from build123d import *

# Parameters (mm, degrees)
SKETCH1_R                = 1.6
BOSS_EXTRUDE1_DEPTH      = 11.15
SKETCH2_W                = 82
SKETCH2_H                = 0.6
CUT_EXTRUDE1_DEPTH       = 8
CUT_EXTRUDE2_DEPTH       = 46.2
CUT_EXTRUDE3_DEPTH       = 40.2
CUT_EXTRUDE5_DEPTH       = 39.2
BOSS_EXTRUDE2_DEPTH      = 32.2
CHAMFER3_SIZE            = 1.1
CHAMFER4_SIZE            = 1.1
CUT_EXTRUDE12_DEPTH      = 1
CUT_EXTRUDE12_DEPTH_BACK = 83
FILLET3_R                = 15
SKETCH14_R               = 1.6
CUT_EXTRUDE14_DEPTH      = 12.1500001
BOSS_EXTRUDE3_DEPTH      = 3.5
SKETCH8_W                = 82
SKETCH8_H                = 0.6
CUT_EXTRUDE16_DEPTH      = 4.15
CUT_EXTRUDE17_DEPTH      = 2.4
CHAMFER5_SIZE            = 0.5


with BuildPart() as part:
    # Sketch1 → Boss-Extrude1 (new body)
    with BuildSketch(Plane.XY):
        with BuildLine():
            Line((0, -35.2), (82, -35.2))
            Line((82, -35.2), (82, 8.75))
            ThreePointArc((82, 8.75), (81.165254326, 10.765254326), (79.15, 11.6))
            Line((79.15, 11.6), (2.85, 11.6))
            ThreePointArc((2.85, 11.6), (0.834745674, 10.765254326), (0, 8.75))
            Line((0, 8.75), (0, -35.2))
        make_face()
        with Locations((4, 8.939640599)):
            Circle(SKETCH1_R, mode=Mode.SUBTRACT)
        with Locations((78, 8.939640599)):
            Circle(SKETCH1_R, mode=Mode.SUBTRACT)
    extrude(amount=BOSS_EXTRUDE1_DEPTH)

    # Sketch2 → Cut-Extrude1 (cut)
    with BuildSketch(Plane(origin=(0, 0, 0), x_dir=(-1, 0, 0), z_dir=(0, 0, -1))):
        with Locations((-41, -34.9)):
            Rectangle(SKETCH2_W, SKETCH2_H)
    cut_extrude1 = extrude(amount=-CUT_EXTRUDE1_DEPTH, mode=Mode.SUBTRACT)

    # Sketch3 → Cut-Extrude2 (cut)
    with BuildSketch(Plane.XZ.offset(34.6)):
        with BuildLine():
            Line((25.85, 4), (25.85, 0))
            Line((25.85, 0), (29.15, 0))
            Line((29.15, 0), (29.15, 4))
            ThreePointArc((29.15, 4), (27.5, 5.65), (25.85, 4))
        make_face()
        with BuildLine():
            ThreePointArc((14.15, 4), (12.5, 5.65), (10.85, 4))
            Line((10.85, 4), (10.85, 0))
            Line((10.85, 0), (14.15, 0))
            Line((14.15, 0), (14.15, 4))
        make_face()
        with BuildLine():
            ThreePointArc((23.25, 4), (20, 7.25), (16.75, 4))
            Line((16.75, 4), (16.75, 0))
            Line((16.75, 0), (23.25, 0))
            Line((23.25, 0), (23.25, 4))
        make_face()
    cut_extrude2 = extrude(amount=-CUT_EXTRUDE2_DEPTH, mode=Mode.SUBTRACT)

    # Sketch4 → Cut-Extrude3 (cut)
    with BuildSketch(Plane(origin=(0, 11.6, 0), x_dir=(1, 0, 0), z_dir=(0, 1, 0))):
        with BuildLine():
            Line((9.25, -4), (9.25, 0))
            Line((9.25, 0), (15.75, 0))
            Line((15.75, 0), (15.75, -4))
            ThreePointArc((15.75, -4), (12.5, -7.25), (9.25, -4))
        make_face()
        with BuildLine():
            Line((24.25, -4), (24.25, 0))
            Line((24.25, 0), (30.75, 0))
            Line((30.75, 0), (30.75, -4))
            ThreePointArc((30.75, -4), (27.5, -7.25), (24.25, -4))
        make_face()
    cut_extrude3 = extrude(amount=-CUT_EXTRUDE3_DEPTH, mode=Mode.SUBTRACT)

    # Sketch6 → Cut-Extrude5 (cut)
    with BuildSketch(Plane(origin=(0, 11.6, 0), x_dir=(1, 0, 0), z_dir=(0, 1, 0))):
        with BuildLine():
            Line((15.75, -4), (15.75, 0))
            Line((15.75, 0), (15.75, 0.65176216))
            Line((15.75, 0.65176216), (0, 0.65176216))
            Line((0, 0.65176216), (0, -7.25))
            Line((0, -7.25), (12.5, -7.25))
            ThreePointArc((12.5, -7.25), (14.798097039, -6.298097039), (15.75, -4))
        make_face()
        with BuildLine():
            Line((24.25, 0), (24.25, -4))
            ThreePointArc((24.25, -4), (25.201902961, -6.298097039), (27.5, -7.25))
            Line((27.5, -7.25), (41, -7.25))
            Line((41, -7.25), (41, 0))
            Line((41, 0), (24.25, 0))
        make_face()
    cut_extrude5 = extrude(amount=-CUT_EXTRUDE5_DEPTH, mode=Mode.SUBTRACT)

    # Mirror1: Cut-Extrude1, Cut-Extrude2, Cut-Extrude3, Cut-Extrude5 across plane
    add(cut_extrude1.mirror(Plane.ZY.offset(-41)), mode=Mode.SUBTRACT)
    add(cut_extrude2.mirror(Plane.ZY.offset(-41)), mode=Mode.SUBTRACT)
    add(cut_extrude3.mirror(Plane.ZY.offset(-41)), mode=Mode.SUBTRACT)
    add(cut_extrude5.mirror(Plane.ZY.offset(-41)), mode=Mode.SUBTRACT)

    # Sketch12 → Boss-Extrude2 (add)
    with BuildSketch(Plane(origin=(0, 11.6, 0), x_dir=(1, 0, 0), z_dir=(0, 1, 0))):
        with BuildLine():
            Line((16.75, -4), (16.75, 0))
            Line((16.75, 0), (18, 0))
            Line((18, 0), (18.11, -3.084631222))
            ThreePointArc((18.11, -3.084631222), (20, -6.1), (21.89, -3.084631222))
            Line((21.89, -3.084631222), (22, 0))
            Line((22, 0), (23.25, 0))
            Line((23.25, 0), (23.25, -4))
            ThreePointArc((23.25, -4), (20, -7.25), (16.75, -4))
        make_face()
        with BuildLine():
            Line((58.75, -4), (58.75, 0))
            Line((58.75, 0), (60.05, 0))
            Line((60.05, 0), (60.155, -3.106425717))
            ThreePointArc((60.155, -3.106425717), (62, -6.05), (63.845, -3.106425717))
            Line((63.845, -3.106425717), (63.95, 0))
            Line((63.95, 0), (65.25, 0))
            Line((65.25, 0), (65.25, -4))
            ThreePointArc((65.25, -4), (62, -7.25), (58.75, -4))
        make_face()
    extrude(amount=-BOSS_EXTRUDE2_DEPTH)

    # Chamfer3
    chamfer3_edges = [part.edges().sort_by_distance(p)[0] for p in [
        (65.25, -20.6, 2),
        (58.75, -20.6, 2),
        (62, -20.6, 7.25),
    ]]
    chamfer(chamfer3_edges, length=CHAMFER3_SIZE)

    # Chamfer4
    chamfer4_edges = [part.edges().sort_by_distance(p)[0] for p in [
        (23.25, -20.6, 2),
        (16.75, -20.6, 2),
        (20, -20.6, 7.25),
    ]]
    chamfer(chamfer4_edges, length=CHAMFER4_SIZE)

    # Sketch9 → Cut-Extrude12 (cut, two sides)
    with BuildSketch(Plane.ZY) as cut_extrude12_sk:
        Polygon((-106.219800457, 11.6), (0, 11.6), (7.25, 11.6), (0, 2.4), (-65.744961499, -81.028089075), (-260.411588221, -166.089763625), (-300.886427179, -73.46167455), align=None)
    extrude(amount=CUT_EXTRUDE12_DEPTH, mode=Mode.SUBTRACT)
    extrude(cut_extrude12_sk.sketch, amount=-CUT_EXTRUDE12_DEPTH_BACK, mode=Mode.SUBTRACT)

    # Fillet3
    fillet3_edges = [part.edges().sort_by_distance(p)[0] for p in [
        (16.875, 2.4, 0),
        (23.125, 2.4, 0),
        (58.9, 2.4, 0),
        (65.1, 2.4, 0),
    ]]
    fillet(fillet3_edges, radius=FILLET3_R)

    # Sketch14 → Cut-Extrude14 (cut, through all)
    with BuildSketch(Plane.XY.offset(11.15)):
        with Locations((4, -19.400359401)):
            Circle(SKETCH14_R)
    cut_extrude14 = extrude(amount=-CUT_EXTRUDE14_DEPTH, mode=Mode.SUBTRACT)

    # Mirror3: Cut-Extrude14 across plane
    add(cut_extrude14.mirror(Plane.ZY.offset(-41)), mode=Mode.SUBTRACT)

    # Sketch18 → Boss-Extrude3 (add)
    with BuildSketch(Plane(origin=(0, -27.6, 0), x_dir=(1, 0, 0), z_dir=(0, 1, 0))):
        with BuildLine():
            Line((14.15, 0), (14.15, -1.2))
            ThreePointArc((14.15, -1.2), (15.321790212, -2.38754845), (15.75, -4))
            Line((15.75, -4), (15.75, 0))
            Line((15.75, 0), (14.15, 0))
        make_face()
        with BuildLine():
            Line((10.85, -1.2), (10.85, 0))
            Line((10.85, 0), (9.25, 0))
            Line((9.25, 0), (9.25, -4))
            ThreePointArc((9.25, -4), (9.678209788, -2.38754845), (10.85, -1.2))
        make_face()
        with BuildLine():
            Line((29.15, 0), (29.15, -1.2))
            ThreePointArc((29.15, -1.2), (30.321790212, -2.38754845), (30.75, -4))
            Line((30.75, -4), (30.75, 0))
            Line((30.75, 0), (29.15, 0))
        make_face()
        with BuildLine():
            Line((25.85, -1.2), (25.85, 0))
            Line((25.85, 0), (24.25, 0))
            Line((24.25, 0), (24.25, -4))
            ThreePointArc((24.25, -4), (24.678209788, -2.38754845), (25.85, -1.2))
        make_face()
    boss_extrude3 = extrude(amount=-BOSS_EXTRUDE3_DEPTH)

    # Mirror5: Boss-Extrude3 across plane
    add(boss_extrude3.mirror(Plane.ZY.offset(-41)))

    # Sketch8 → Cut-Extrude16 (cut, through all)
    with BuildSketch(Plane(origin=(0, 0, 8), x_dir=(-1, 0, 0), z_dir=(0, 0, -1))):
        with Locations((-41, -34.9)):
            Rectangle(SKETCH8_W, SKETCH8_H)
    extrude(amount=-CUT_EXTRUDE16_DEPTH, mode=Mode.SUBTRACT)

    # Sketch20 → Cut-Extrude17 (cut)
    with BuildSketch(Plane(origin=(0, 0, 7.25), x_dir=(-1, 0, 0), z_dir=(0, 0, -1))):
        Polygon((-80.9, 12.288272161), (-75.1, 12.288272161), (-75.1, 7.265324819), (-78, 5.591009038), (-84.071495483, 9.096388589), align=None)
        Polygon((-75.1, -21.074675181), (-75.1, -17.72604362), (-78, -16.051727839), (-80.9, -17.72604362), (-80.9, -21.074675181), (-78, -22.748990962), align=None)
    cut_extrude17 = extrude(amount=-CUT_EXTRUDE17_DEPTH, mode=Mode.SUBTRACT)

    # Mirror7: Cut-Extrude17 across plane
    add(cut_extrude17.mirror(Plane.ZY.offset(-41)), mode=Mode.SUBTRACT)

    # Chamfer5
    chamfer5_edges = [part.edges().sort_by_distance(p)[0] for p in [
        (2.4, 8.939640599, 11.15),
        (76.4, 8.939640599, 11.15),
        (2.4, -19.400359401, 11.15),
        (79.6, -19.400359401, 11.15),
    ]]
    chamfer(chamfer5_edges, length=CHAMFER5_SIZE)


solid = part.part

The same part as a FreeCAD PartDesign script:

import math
import FreeCAD as App
import Part
import Sketcher
from FreeCAD import Vector
Q = App.Units.Quantity


def edges_at(feature, points):
    """Names of the edges that pass closest to the given points."""
    edges = feature.Shape.Edges
    near = lambda p: min(range(len(edges)), key=lambda i: edges[i].distToShape(Part.Vertex(*p))[0])
    return sorted({f"Edge{near(p) + 1}" for p in points})

doc = App.newDocument("Part")
params = doc.addObject("Spreadsheet::Sheet", "Params")
for row, (alias, value) in enumerate([
    ("sketch1_diameter", "3.2 mm"),
    ("sketch1_width", "82 mm"),
    ("sketch1_radius", "2.85 mm"),
    ("sketch1_height", "43.95 mm"),
    ("pad1_length", "11.15 mm"),
    ("sketch2_width", "82 mm"),
    ("sketch2_height", "0.6 mm"),
    ("pocket1_length", "8 mm"),
    ("sketch3_height", "4 mm"),
    ("sketch3_radius", "1.65 mm"),
    ("sketch3_radius2", "3.25 mm"),
    ("pocket2_length", "46.2 mm"),
    ("sketch4_height", "4 mm"),
    ("sketch4_radius", "3.25 mm"),
    ("pocket3_length", "40.2 mm"),
    ("sketch5_height", "4 mm"),
    ("sketch5_radius", "3.25 mm"),
    ("sketch5_width", "12.5 mm"),
    ("sketch5_width2", "13.5 mm"),
    ("pocket4_length", "39.2 mm"),
    ("sketch6_radius", "2.1 mm"),
    ("sketch6_height", "4 mm"),
    ("sketch6_radius2", "3.25 mm"),
    ("sketch6_radius3", "2.05 mm"),
    ("sketch6_width", "1.3 mm"),
    ("pad2_length", "32.2 mm"),
    ("chamfer_size", "1.1 mm"),
    ("chamfer2_size", "1.1 mm"),
    ("fillet_radius", "15 mm"),
    ("sketch8_diameter", "3.2 mm"),
    ("sketch9_height", "4 mm"),
    ("sketch9_radius", "3.25 mm"),
    ("sketch9_width", "1.6 mm"),
    ("pad3_length", "3.5 mm"),
    ("sketch10_width", "82 mm"),
    ("sketch10_height", "0.6 mm"),
    ("sketch11_width", "5.8 mm"),
    ("pocket8_length", "2.4 mm"),
    ("chamfer3_size", "0.5 mm"),
], start=1):
    params.set(f"A{row}", alias)
    params.set(f"B{row}", "=" + value)
    params.setAlias(f"B{row}", alias)

body = doc.addObject("PartDesign::Body", "Body")

# Sketch on XY plane
sketch1 = body.newObject("Sketcher::SketchObject", "Sketch")
sketch1.AttachmentSupport = (doc.getObject("XY_Plane"), [""])
sketch1.MapMode = "FlatFace"
sketch1.addGeometry([
    Part.LineSegment(Vector(0, -35.2, 0), Vector(82, -35.2, 0)),  # 0
    Part.LineSegment(Vector(82, -35.2, 0), Vector(82, 8.8, 0)),  # 1
    Part.ArcOfCircle(Part.Circle(Vector(79.1, 8.7, 0), Vector(0, 0, 1), 2.9), math.radians(0), math.radians(90)),  # 2
    Part.LineSegment(Vector(79.2, 11.6, 0), Vector(2.9, 11.6, 0)),  # 3
    Part.ArcOfCircle(Part.Circle(Vector(2.9, 8.7, 0), Vector(0, 0, 1), 2.9), math.radians(90), math.radians(180)),  # 4
    Part.LineSegment(Vector(0, 8.8, 0), Vector(0, -35.2, 0)),  # 5
    Part.Circle(Vector(4, 8.9, 0), Vector(0, 0, 1), 1.6),  # 6
    Part.Circle(Vector(78, 8.9, 0), Vector(0, 0, 1), 1.6),  # 7
], False)
sketch1.addConstraint([
    Sketcher.Constraint("Coincident", 0, 2, 1, 1),
    Sketcher.Constraint("Tangent", 1, 2, 2, 1),
    Sketcher.Constraint("Tangent", 2, 2, 3, 1),
    Sketcher.Constraint("Tangent", 3, 2, 4, 1),
    Sketcher.Constraint("Tangent", 4, 2, 5, 1),
    Sketcher.Constraint("Coincident", 5, 2, 0, 1),
    Sketcher.Constraint("Horizontal", 0),
    Sketcher.Constraint("Vertical", 1),
    Sketcher.Constraint("Horizontal", 3),
    Sketcher.Constraint("Vertical", 5),
    Sketcher.Constraint("Equal", 2, 4),
    Sketcher.Constraint("Equal", 6, 7),
    Sketcher.Constraint("PointOnObject", 4, 2, -2),
    Sketcher.Constraint("Horizontal", 6, 3, 7, 3),
    Sketcher.Constraint("Diameter", 6, 3.2),
    Sketcher.Constraint("DistanceX", 0, 1, 0, 2, 82.0),
    Sketcher.Constraint("Radius", 2, 2.85),
    Sketcher.Constraint("DistanceX", -1, 1, 6, 3, 4.0),
    Sketcher.Constraint("DistanceX", -1, 1, 7, 3, 78.0),
    Sketcher.Constraint("DistanceY", 1, 1, 1, 2, 43.95),
    Sketcher.Constraint("DistanceY", 0, 2, -1, 1, 35.2),
    Sketcher.Constraint("DistanceY", -1, 1, 6, 3, 8.939641),
])
sketch1.setExpression("Constraints[14]", "Params.sketch1_diameter")
sketch1.setExpression("Constraints[15]", "Params.sketch1_width")
sketch1.setExpression("Constraints[16]", "Params.sketch1_radius")
sketch1.setExpression("Constraints[19]", "Params.sketch1_height")
pad1 = body.newObject("PartDesign::Pad", "Pad")
pad1.Profile = sketch1
pad1.setExpression("Length", "Params.pad1_length")

# Sketch on XY plane
sketch2 = body.newObject("Sketcher::SketchObject", "Sketch001")
sketch2.AttachmentSupport = (doc.getObject("XY_Plane"), [""])
sketch2.MapMode = "FlatFace"
sketch2.addGeometry([
    Part.LineSegment(Vector(82, -34.6, 0), Vector(82, -35.2, 0)),
    Part.LineSegment(Vector(82, -35.2, 0), Vector(0, -35.2, 0)),
    Part.LineSegment(Vector(0, -35.2, 0), Vector(0, -34.6, 0)),
    Part.LineSegment(Vector(0, -34.6, 0), Vector(82, -34.6, 0)),
], False)
sketch2.addConstraint([
    Sketcher.Constraint("Coincident", 0, 2, 1, 1),
    Sketcher.Constraint("Coincident", 1, 2, 2, 1),
    Sketcher.Constraint("Coincident", 2, 2, 3, 1),
    Sketcher.Constraint("Coincident", 3, 2, 0, 1),
    Sketcher.Constraint("Vertical", 0),
    Sketcher.Constraint("Horizontal", 1),
    Sketcher.Constraint("Vertical", 2),
    Sketcher.Constraint("Horizontal", 3),
    Sketcher.Constraint("PointOnObject", 1, 2, -2),
    Sketcher.Constraint("DistanceX", 1, 2, 1, 1, 82.0),
    Sketcher.Constraint("DistanceY", 0, 2, 0, 1, 0.6),
    Sketcher.Constraint("DistanceY", 0, 2, -1, 1, 35.2),
])
sketch2.setExpression("Constraints[9]", "Params.sketch2_width")
sketch2.setExpression("Constraints[10]", "Params.sketch2_height")
pocket1 = body.newObject("PartDesign::Pocket", "Pocket")
pocket1.Profile = sketch2
pocket1.setExpression("Length", "Params.pocket1_length")
pocket1.Reversed = True

# Sketch on XZ plane
sketch3 = body.newObject("Sketcher::SketchObject", "Sketch002")
sketch3.AttachmentSupport = (doc.getObject("XZ_Plane"), [""])
sketch3.MapMode = "FlatFace"
sketch3.AttachmentOffset = App.Placement(Vector(0, 0, 34.6), App.Rotation())
sketch3.addGeometry([
    Part.LineSegment(Vector(25.9, 4, 0), Vector(25.9, 0, 0)),  # 0
    Part.LineSegment(Vector(25.9, 0, 0), Vector(29.1, 0, 0)),  # 1
    Part.LineSegment(Vector(29.1, 0, 0), Vector(29.1, 4, 0)),  # 2
    Part.ArcOfCircle(Part.Circle(Vector(27.5, 4, 0), Vector(0, 0, 1), 1.6), math.radians(0), math.radians(180)),  # 3
    Part.ArcOfCircle(Part.Circle(Vector(12.5, 4, 0), Vector(0, 0, 1), 1.6), math.radians(0), math.radians(180)),  # 4
    Part.LineSegment(Vector(10.8, 4, 0), Vector(10.8, 0, 0)),  # 5
    Part.LineSegment(Vector(10.8, 0, 0), Vector(14.2, 0, 0)),  # 6
    Part.LineSegment(Vector(14.2, 0, 0), Vector(14.2, 4, 0)),  # 7
    Part.ArcOfCircle(Part.Circle(Vector(20, 4, 0), Vector(0, 0, 1), 3.2), math.radians(0), math.radians(180)),  # 8
    Part.LineSegment(Vector(16.8, 4, 0), Vector(16.8, 0, 0)),  # 9
    Part.LineSegment(Vector(16.8, 0, 0), Vector(23.2, 0, 0)),  # 10
    Part.LineSegment(Vector(23.2, 0, 0), Vector(23.2, 4, 0)),  # 11
], False)
sketch3.addConstraint([
    Sketcher.Constraint("Coincident", 0, 2, 1, 1),
    Sketcher.Constraint("Coincident", 1, 2, 2, 1),
    Sketcher.Constraint("Tangent", 2, 2, 3, 1),
    Sketcher.Constraint("Tangent", 3, 2, 0, 1),
    Sketcher.Constraint("Tangent", 4, 2, 5, 1),
    Sketcher.Constraint("Coincident", 5, 2, 6, 1),
    Sketcher.Constraint("Coincident", 6, 2, 7, 1),
    Sketcher.Constraint("Tangent", 7, 2, 4, 1),
    Sketcher.Constraint("Tangent", 8, 2, 9, 1),
    Sketcher.Constraint("Coincident", 9, 2, 10, 1),
    Sketcher.Constraint("Coincident", 10, 2, 11, 1),
    Sketcher.Constraint("Tangent", 11, 2, 8, 1),
    Sketcher.Constraint("Vertical", 0),
    Sketcher.Constraint("Horizontal", 1),
    Sketcher.Constraint("Vertical", 2),
    Sketcher.Constraint("Vertical", 5),
    Sketcher.Constraint("Horizontal", 6),
    Sketcher.Constraint("Vertical", 7),
    Sketcher.Constraint("Vertical", 9),
    Sketcher.Constraint("Horizontal", 10),
    Sketcher.Constraint("Vertical", 11),
    Sketcher.Constraint("Equal", 3, 4),
    Sketcher.Constraint("PointOnObject", 0, 2, -1),
    Sketcher.Constraint("PointOnObject", 5, 2, -1),
    Sketcher.Constraint("PointOnObject", 9, 2, -1),
    Sketcher.Constraint("Horizontal", 3, 3, 4, 3),
    Sketcher.Constraint("Horizontal", 4, 3, 8, 3),
    Sketcher.Constraint("DistanceY", 0, 2, 0, 1, 4.0),
    Sketcher.Constraint("Radius", 3, 1.65),
    Sketcher.Constraint("Radius", 8, 3.25),
    Sketcher.Constraint("DistanceX", -1, 1, 8, 3, 20.0),
    Sketcher.Constraint("DistanceX", 4, 3, 3, 3, 15.0),
    Sketcher.Constraint("DistanceX", -1, 1, 3, 3, 27.5),
])
sketch3.setExpression("Constraints[27]", "Params.sketch3_height")
sketch3.setExpression("Constraints[28]", "Params.sketch3_radius")
sketch3.setExpression("Constraints[29]", "Params.sketch3_radius2")
pocket2 = body.newObject("PartDesign::Pocket", "Pocket001")
pocket2.Profile = sketch3
pocket2.setExpression("Length", "Params.pocket2_length")

# Sketch on XZ plane
sketch4 = body.newObject("Sketcher::SketchObject", "Sketch003")
sketch4.AttachmentSupport = (doc.getObject("XZ_Plane"), [""])
sketch4.MapMode = "FlatFace"
sketch4.AttachmentOffset = App.Placement(Vector(0, 0, -11.6), App.Rotation())
sketch4.addGeometry([
    Part.LineSegment(Vector(9.2, 0, 0), Vector(9.2, 4, 0)),  # 0
    Part.ArcOfCircle(Part.Circle(Vector(12.5, 4, 0), Vector(0, 0, 1), 3.2), math.radians(0), math.radians(180)),  # 1
    Part.LineSegment(Vector(15.8, 4, 0), Vector(15.8, 0, 0)),  # 2
    Part.LineSegment(Vector(15.8, 0, 0), Vector(9.2, 0, 0)),  # 3
    Part.LineSegment(Vector(24.2, 0, 0), Vector(24.2, 4, 0)),  # 4
    Part.ArcOfCircle(Part.Circle(Vector(27.5, 4, 0), Vector(0, 0, 1), 3.2), math.radians(0), math.radians(180)),  # 5
    Part.LineSegment(Vector(30.8, 4, 0), Vector(30.8, 0, 0)),  # 6
    Part.LineSegment(Vector(30.8, 0, 0), Vector(24.2, 0, 0)),  # 7
], False)
sketch4.addConstraint([
    Sketcher.Constraint("Tangent", 0, 2, 1, 2),
    Sketcher.Constraint("Tangent", 1, 1, 2, 1),
    Sketcher.Constraint("Coincident", 2, 2, 3, 1),
    Sketcher.Constraint("Coincident", 3, 2, 0, 1),
    Sketcher.Constraint("Tangent", 4, 2, 5, 2),
    Sketcher.Constraint("Tangent", 5, 1, 6, 1),
    Sketcher.Constraint("Coincident", 6, 2, 7, 1),
    Sketcher.Constraint("Coincident", 7, 2, 4, 1),
    Sketcher.Constraint("Vertical", 0),
    Sketcher.Constraint("Vertical", 2),
    Sketcher.Constraint("Horizontal", 3),
    Sketcher.Constraint("Vertical", 4),
    Sketcher.Constraint("Vertical", 6),
    Sketcher.Constraint("Horizontal", 7),
    Sketcher.Constraint("Equal", 1, 5),
    Sketcher.Constraint("PointOnObject", 2, 2, -1),
    Sketcher.Constraint("PointOnObject", 6, 2, -1),
    Sketcher.Constraint("Horizontal", 1, 3, 5, 3),
    Sketcher.Constraint("DistanceY", 0, 1, 0, 2, 4.0),
    Sketcher.Constraint("Radius", 1, 3.25),
    Sketcher.Constraint("DistanceX", 1, 3, 5, 3, 15.0),
    Sketcher.Constraint("DistanceX", -1, 1, 1, 3, 12.5),
])
sketch4.setExpression("Constraints[18]", "Params.sketch4_height")
sketch4.setExpression("Constraints[19]", "Params.sketch4_radius")
pocket3 = body.newObject("PartDesign::Pocket", "Pocket002")
pocket3.Profile = sketch4
pocket3.setExpression("Length", "Params.pocket3_length")
pocket3.Reversed = True

# Sketch on XZ plane
sketch5 = body.newObject("Sketcher::SketchObject", "Sketch004")
sketch5.AttachmentSupport = (doc.getObject("XZ_Plane"), [""])
sketch5.MapMode = "FlatFace"
sketch5.AttachmentOffset = App.Placement(Vector(0, 0, -11.6), App.Rotation())
sketch5.addGeometry([
    Part.LineSegment(Vector(15.8, 4, 0), Vector(15.8, -0.7, 0)),  # 0
    Part.LineSegment(Vector(15.8, -0.7, 0), Vector(0, -0.7, 0)),  # 1
    Part.LineSegment(Vector(0, -0.7, 0), Vector(0, 7.2, 0)),  # 2
    Part.LineSegment(Vector(0, 7.2, 0), Vector(12.5, 7.2, 0)),  # 3
    Part.ArcOfCircle(Part.Circle(Vector(12.5, 4, 0), Vector(0, 0, 1), 3.2), math.radians(0), math.radians(90)),  # 4
    Part.LineSegment(Vector(24.2, 0, 0), Vector(24.2, 4, 0)),  # 5
    Part.ArcOfCircle(Part.Circle(Vector(27.5, 4, 0), Vector(0, 0, 1), 3.2), math.radians(90), math.radians(180)),  # 6
    Part.LineSegment(Vector(27.5, 7.2, 0), Vector(41, 7.2, 0)),  # 7
    Part.LineSegment(Vector(41, 7.2, 0), Vector(41, 0, 0)),  # 8
    Part.LineSegment(Vector(41, 0, 0), Vector(24.2, 0, 0)),  # 9
], False)
sketch5.addConstraint([
    Sketcher.Constraint("Coincident", 0, 2, 1, 1),
    Sketcher.Constraint("Coincident", 1, 2, 2, 1),
    Sketcher.Constraint("Coincident", 2, 2, 3, 1),
    Sketcher.Constraint("Tangent", 3, 2, 4, 2),
    Sketcher.Constraint("Tangent", 4, 1, 0, 1),
    Sketcher.Constraint("Tangent", 5, 2, 6, 2),
    Sketcher.Constraint("Tangent", 6, 1, 7, 1),
    Sketcher.Constraint("Coincident", 7, 2, 8, 1),
    Sketcher.Constraint("Coincident", 8, 2, 9, 1),
    Sketcher.Constraint("Coincident", 9, 2, 5, 1),
    Sketcher.Constraint("Vertical", 0),
    Sketcher.Constraint("Horizontal", 1),
    Sketcher.Constraint("Vertical", 2),
    Sketcher.Constraint("Horizontal", 3),
    Sketcher.Constraint("Vertical", 5),
    Sketcher.Constraint("Horizontal", 7),
    Sketcher.Constraint("Vertical", 8),
    Sketcher.Constraint("Horizontal", 9),
    Sketcher.Constraint("Equal", 4, 6),
    Sketcher.Constraint("PointOnObject", 1, 2, -2),
    Sketcher.Constraint("PointOnObject", 8, 2, -1),
    Sketcher.Constraint("Horizontal", 4, 3, 6, 3),
    Sketcher.Constraint("DistanceY", 5, 1, 5, 2, 4.0),
    Sketcher.Constraint("Radius", 4, 3.25),
    Sketcher.Constraint("DistanceX", 3, 1, 3, 2, 12.5),
    Sketcher.Constraint("DistanceX", 7, 1, 7, 2, 13.5),
    Sketcher.Constraint("DistanceX", -1, 1, 7, 2, 41.0),
    Sketcher.Constraint("DistanceY", 0, 2, 0, 1, 4.651762),
])
sketch5.setExpression("Constraints[22]", "Params.sketch5_height")
sketch5.setExpression("Constraints[23]", "Params.sketch5_radius")
sketch5.setExpression("Constraints[24]", "Params.sketch5_width")
sketch5.setExpression("Constraints[25]", "Params.sketch5_width2")
pocket4 = body.newObject("PartDesign::Pocket", "Pocket003")
pocket4.Profile = sketch5
pocket4.setExpression("Length", "Params.pocket4_length")
pocket4.Reversed = True
doc.recompute()

datumplane = body.newObject("PartDesign::Plane", "DatumPlane")
datumplane.AttachmentSupport = (doc.getObject("YZ_Plane"), [""])
datumplane.MapMode = "FlatFace"
datumplane.AttachmentOffset = App.Placement(Vector(0, 0, 41), App.Rotation())
mirrored = body.newObject("PartDesign::Mirrored", "Mirrored")
mirrored.Originals = [pocket1, pocket2, pocket3, pocket4]
mirrored.MirrorPlane = (datumplane, [""])
body.Tip = mirrored

# Sketch on XZ plane
sketch6 = body.newObject("Sketcher::SketchObject", "Sketch005")
sketch6.AttachmentSupport = (doc.getObject("XZ_Plane"), [""])
sketch6.MapMode = "FlatFace"
sketch6.AttachmentOffset = App.Placement(Vector(0, 0, -11.6), App.Rotation())
sketch6.addGeometry([
    Part.LineSegment(Vector(16.8, 0, 0), Vector(16.8, 4, 0)),  # 0
    Part.ArcOfCircle(Part.Circle(Vector(20, 4, 0), Vector(0, 0, 1), 3.2), math.radians(0), math.radians(180)),  # 1
    Part.LineSegment(Vector(23.2, 4, 0), Vector(23.2, 0, 0)),  # 2
    Part.LineSegment(Vector(23.2, 0, 0), Vector(22, 0, 0)),  # 3
    Part.LineSegment(Vector(22, 0, 0), Vector(21.9, 3.1, 0)),  # 4
    Part.ArcOfCircle(Part.Circle(Vector(20, 4, 0), Vector(0, 0, 1), 2.1), math.radians(-26), math.radians(206)),  # 5
    Part.LineSegment(Vector(18.1, 3.1, 0), Vector(18, 0, 0)),  # 6
    Part.LineSegment(Vector(18, 0, 0), Vector(16.8, 0, 0)),  # 7
    Part.LineSegment(Vector(58.8, 0, 0), Vector(58.8, 4, 0)),  # 8
    Part.ArcOfCircle(Part.Circle(Vector(62, 4, 0), Vector(0, 0, 1), 3.2), math.radians(0), math.radians(180)),  # 9
    Part.LineSegment(Vector(65.2, 4, 0), Vector(65.2, 0, 0)),  # 10
    Part.LineSegment(Vector(65.2, 0, 0), Vector(64, 0, 0)),  # 11
    Part.LineSegment(Vector(64, 0, 0), Vector(63.8, 3.1, 0)),  # 12
    Part.ArcOfCircle(Part.Circle(Vector(62, 4, 0), Vector(0, 0, 1), 2), math.radians(-26), math.radians(206)),  # 13
    Part.LineSegment(Vector(60.2, 3.1, 0), Vector(60, 0, 0)),  # 14
    Part.LineSegment(Vector(60, 0, 0), Vector(58.8, 0, 0)),  # 15
], False)
sketch6.addConstraint([
    Sketcher.Constraint("Tangent", 0, 2, 1, 2),
    Sketcher.Constraint("Tangent", 1, 1, 2, 1),
    Sketcher.Constraint("Coincident", 2, 2, 3, 1),
    Sketcher.Constraint("Coincident", 3, 2, 4, 1),
    Sketcher.Constraint("Coincident", 4, 2, 5, 1),
    Sketcher.Constraint("Coincident", 5, 2, 6, 1),
    Sketcher.Constraint("Coincident", 6, 2, 7, 1),
    Sketcher.Constraint("Coincident", 7, 2, 0, 1),
    Sketcher.Constraint("Tangent", 8, 2, 9, 2),
    Sketcher.Constraint("Tangent", 9, 1, 10, 1),
    Sketcher.Constraint("Coincident", 10, 2, 11, 1),
    Sketcher.Constraint("Coincident", 11, 2, 12, 1),
    Sketcher.Constraint("Coincident", 12, 2, 13, 1),
    Sketcher.Constraint("Coincident", 13, 2, 14, 1),
    Sketcher.Constraint("Coincident", 14, 2, 15, 1),
    Sketcher.Constraint("Coincident", 15, 2, 8, 1),
    Sketcher.Constraint("Vertical", 0),
    Sketcher.Constraint("Vertical", 2),
    Sketcher.Constraint("Horizontal", 3),
    Sketcher.Constraint("Horizontal", 7),
    Sketcher.Constraint("Vertical", 8),
    Sketcher.Constraint("Vertical", 10),
    Sketcher.Constraint("Horizontal", 11),
    Sketcher.Constraint("Horizontal", 15),
    Sketcher.Constraint("Coincident", 5, 3, 1, 3),
    Sketcher.Constraint("Coincident", 13, 3, 9, 3),
    Sketcher.Constraint("Equal", 1, 9),
    Sketcher.Constraint("PointOnObject", 2, 2, -1),
    Sketcher.Constraint("PointOnObject", 6, 2, -1),
    Sketcher.Constraint("PointOnObject", 10, 2, -1),
    Sketcher.Constraint("PointOnObject", 14, 2, -1),
    Sketcher.Constraint("Horizontal", 5, 3, 9, 3),
    Sketcher.Constraint("Horizontal", 4, 2, 5, 2),
    Sketcher.Constraint("Horizontal", 12, 2, 13, 2),
    Sketcher.Constraint("Equal", 3, 7),
    Sketcher.Constraint("Equal", 11, 15),
    Sketcher.Constraint("Radius", 5, 2.1),
    Sketcher.Constraint("DistanceY", 0, 1, 0, 2, 4.0),
    Sketcher.Constraint("Radius", 1, 3.25),
    Sketcher.Constraint("Radius", 13, 2.05),
    Sketcher.Constraint("DistanceX", 11, 2, 11, 1, 1.3),
    Sketcher.Constraint("DistanceX", -1, 1, 1, 3, 20.0),
    Sketcher.Constraint("DistanceX", -1, 1, 9, 3, 62.0),
    Sketcher.Constraint("DistanceX", -1, 1, 3, 2, 22.0),
    Sketcher.Constraint("DistanceX", -1, 1, 4, 2, 21.89),
    Sketcher.Constraint("DistanceX", 13, 2, 12, 2, 3.69),
])
sketch6.setExpression("Constraints[36]", "Params.sketch6_radius")
sketch6.setExpression("Constraints[37]", "Params.sketch6_height")
sketch6.setExpression("Constraints[38]", "Params.sketch6_radius2")
sketch6.setExpression("Constraints[39]", "Params.sketch6_radius3")
sketch6.setExpression("Constraints[40]", "Params.sketch6_width")
pad2 = body.newObject("PartDesign::Pad", "Pad001")
pad2.Profile = sketch6
pad2.setExpression("Length", "Params.pad2_length")
doc.recompute()

chamfer = body.newObject("PartDesign::Chamfer", "Chamfer")
chamfer.Base = (pad2, edges_at(pad2, [(65.25, -20.6, 2), (58.75, -20.6, 2), (62, -20.6, 7.25)]))
chamfer.setExpression("Size", "Params.chamfer_size")
doc.recompute()

chamfer2 = body.newObject("PartDesign::Chamfer", "Chamfer001")
chamfer2.Base = (chamfer, edges_at(chamfer, [(23.25, -20.6, 2), (16.75, -20.6, 2), (20, -20.6, 7.25)]))
chamfer2.setExpression("Size", "Params.chamfer2_size")

# Sketch on YZ plane
sketch7 = body.newObject("Sketcher::SketchObject", "Sketch006")
sketch7.AttachmentSupport = (doc.getObject("YZ_Plane"), [""])
sketch7.MapMode = "FlatFace"
sketch7.addGeometry([
    Part.LineSegment(Vector(12, 7, 0), Vector(12, -106, 0)),  # 0
    Part.LineSegment(Vector(12, -106, 0), Vector(-73, -301, 0)),  # 1
    Part.LineSegment(Vector(-73, -301, 0), Vector(-166, -260, 0)),  # 2
    Part.LineSegment(Vector(-166, -260, 0), Vector(-81, -66, 0)),  # 3
    Part.LineSegment(Vector(-81, -66, 0), Vector(2, 0, 0)),  # 4
    Part.LineSegment(Vector(2, 0, 0), Vector(12, 7, 0)),  # 5
], False)
sketch7.addConstraint([
    Sketcher.Constraint("Coincident", 0, 2, 1, 1),
    Sketcher.Constraint("Coincident", 1, 2, 2, 1),
    Sketcher.Constraint("Coincident", 2, 2, 3, 1),
    Sketcher.Constraint("Coincident", 3, 2, 4, 1),
    Sketcher.Constraint("Coincident", 4, 2, 5, 1),
    Sketcher.Constraint("Coincident", 5, 2, 0, 1),
    Sketcher.Constraint("Vertical", 0),
    Sketcher.Constraint("PointOnObject", 4, 2, -1),
    Sketcher.Constraint("Perpendicular", 1, 2),
    Sketcher.Constraint("Perpendicular", 2, 3),
    Sketcher.Constraint("Parallel", 4, 5),
    Sketcher.Constraint("Equal", 1, 3),
    Sketcher.Constraint("DistanceX", -1, 1, 0, 2, 11.6),
    Sketcher.Constraint("DistanceX", -1, 1, 4, 2, 2.4),
    Sketcher.Constraint("DistanceY", -1, 1, 5, 2, 7.25),
    Sketcher.Constraint("DistanceY", 0, 2, 0, 1, 113.4698),
    Sketcher.Constraint("Distance", 1, 212.439601),
    Sketcher.Constraint("Distance", 4, 106.2198),
])
pocket5 = body.newObject("PartDesign::Pocket", "Pocket004")
pocket5.Profile = sketch7
pocket5.Type = "ThroughAll"
pocket5.Midplane = True
doc.recompute()

fillet = body.newObject("PartDesign::Fillet", "Fillet")
fillet.Base = (pocket5, edges_at(pocket5, [
    (16.875, 2.4, 0),
    (23.125, 2.4, 0),
    (58.9, 2.4, 0),
    (65.1, 2.4, 0),
]))
fillet.setExpression("Radius", "Params.fillet_radius")

# Sketch on XY plane
sketch8 = body.newObject("Sketcher::SketchObject", "Sketch007")
sketch8.AttachmentSupport = (doc.getObject("XY_Plane"), [""])
sketch8.MapMode = "FlatFace"
sketch8.AttachmentOffset = App.Placement(Vector(0, 0, 11.15), App.Rotation())
sketch8.addGeometry(Part.Circle(Vector(4, -19.4, 0), Vector(0, 0, 1), 1.6), False)
sketch8.addConstraint([
    Sketcher.Constraint("Diameter", 0, 3.2),
    Sketcher.Constraint("DistanceX", -1, 1, 0, 3, 4.0),
    Sketcher.Constraint("DistanceY", 0, 3, -1, 1, 19.400359),
])
sketch8.setExpression("Constraints[0]", "Params.sketch8_diameter")
pocket6 = body.newObject("PartDesign::Pocket", "Pocket005")
pocket6.Profile = sketch8
pocket6.Type = "ThroughAll"
doc.recompute()

datumplane2 = body.newObject("PartDesign::Plane", "DatumPlane001")
datumplane2.AttachmentSupport = (doc.getObject("YZ_Plane"), [""])
datumplane2.MapMode = "FlatFace"
datumplane2.AttachmentOffset = App.Placement(Vector(0, 0, 41), App.Rotation())
mirrored2 = body.newObject("PartDesign::Mirrored", "Mirrored001")
mirrored2.Originals = [pocket6]
mirrored2.MirrorPlane = (datumplane2, [""])
body.Tip = mirrored2

# Sketch on XZ plane
sketch9 = body.newObject("Sketcher::SketchObject", "Sketch008")
sketch9.AttachmentSupport = (doc.getObject("XZ_Plane"), [""])
sketch9.MapMode = "FlatFace"
sketch9.AttachmentOffset = App.Placement(Vector(0, 0, 27.6), App.Rotation())
sketch9.addGeometry([
    Part.LineSegment(Vector(14.2, 0, 0), Vector(14.2, 1.2, 0)),  # 0
    Part.ArcOfCircle(Part.Circle(Vector(12.5, 4, 0), Vector(0, 0, 1), 3.2), math.radians(-59), math.radians(0)),  # 1
    Part.LineSegment(Vector(15.8, 4, 0), Vector(15.8, 0, 0)),  # 2
    Part.LineSegment(Vector(15.8, 0, 0), Vector(14.2, 0, 0)),  # 3
    Part.LineSegment(Vector(10.8, 1.2, 0), Vector(10.8, 0, 0)),  # 4
    Part.LineSegment(Vector(10.8, 0, 0), Vector(9.2, 0, 0)),  # 5
    Part.LineSegment(Vector(9.2, 0, 0), Vector(9.2, 4, 0)),  # 6
    Part.ArcOfCircle(Part.Circle(Vector(12.5, 4, 0), Vector(0, 0, 1), 3.2), math.radians(180), math.radians(239)),  # 7
    Part.LineSegment(Vector(29.1, 0, 0), Vector(29.1, 1.2, 0)),  # 8
    Part.ArcOfCircle(Part.Circle(Vector(27.5, 4, 0), Vector(0, 0, 1), 3.2), math.radians(-59), math.radians(0)),  # 9
    Part.LineSegment(Vector(30.8, 4, 0), Vector(30.8, 0, 0)),  # 10
    Part.LineSegment(Vector(30.8, 0, 0), Vector(29.1, 0, 0)),  # 11
    Part.LineSegment(Vector(25.9, 1.2, 0), Vector(25.9, 0, 0)),  # 12
    Part.LineSegment(Vector(25.9, 0, 0), Vector(24.2, 0, 0)),  # 13
    Part.LineSegment(Vector(24.2, 0, 0), Vector(24.2, 4, 0)),  # 14
    Part.ArcOfCircle(Part.Circle(Vector(27.5, 4, 0), Vector(0, 0, 1), 3.2), math.radians(180), math.radians(239)),  # 15
], False)
sketch9.addConstraint([
    Sketcher.Constraint("Coincident", 0, 2, 1, 1),
    Sketcher.Constraint("Tangent", 1, 2, 2, 1),
    Sketcher.Constraint("Coincident", 2, 2, 3, 1),
    Sketcher.Constraint("Coincident", 3, 2, 0, 1),
    Sketcher.Constraint("Coincident", 4, 2, 5, 1),
    Sketcher.Constraint("Coincident", 5, 2, 6, 1),
    Sketcher.Constraint("Tangent", 6, 2, 7, 1),
    Sketcher.Constraint("Coincident", 7, 2, 4, 1),
    Sketcher.Constraint("Coincident", 8, 2, 9, 1),
    Sketcher.Constraint("Tangent", 9, 2, 10, 1),
    Sketcher.Constraint("Coincident", 10, 2, 11, 1),
    Sketcher.Constraint("Coincident", 11, 2, 8, 1),
    Sketcher.Constraint("Coincident", 12, 2, 13, 1),
    Sketcher.Constraint("Coincident", 13, 2, 14, 1),
    Sketcher.Constraint("Tangent", 14, 2, 15, 1),
    Sketcher.Constraint("Coincident", 15, 2, 12, 1),
    Sketcher.Constraint("Vertical", 0),
    Sketcher.Constraint("Vertical", 2),
    Sketcher.Constraint("Horizontal", 3),
    Sketcher.Constraint("Vertical", 4),
    Sketcher.Constraint("Horizontal", 5),
    Sketcher.Constraint("Vertical", 6),
    Sketcher.Constraint("Vertical", 8),
    Sketcher.Constraint("Vertical", 10),
    Sketcher.Constraint("Horizontal", 11),
    Sketcher.Constraint("Vertical", 12),
    Sketcher.Constraint("Horizontal", 13),
    Sketcher.Constraint("Vertical", 14),
    Sketcher.Constraint("Coincident", 7, 3, 1, 3),
    Sketcher.Constraint("Coincident", 15, 3, 9, 3),
    Sketcher.Constraint("Equal", 1, 7),
    Sketcher.Constraint("Equal", 7, 9),
    Sketcher.Constraint("Equal", 9, 15),
    Sketcher.Constraint("PointOnObject", 2, 2, -1),
    Sketcher.Constraint("PointOnObject", 4, 2, -1),
    Sketcher.Constraint("PointOnObject", 10, 2, -1),
    Sketcher.Constraint("PointOnObject", 12, 2, -1),
    Sketcher.Constraint("Horizontal", 7, 3, 9, 3),
    Sketcher.Constraint("Horizontal", 0, 2, 7, 2),
    Sketcher.Constraint("Horizontal", 7, 2, 8, 2),
    Sketcher.Constraint("Horizontal", 8, 2, 15, 2),
    Sketcher.Constraint("DistanceY", 2, 2, 2, 1, 4.0),
    Sketcher.Constraint("Radius", 1, 3.25),
    Sketcher.Constraint("DistanceX", 3, 2, 3, 1, 1.6),
    Sketcher.Constraint("DistanceX", 1, 3, 9, 3, 15.0),
    Sketcher.Constraint("DistanceX", -1, 1, 1, 3, 12.5),
])
sketch9.setExpression("Constraints[41]", "Params.sketch9_height")
sketch9.setExpression("Constraints[42]", "Params.sketch9_radius")
sketch9.setExpression("Constraints[43]", "Params.sketch9_width")
pad3 = body.newObject("PartDesign::Pad", "Pad002")
pad3.Profile = sketch9
pad3.setExpression("Length", "Params.pad3_length")
doc.recompute()

datumplane3 = body.newObject("PartDesign::Plane", "DatumPlane002")
datumplane3.AttachmentSupport = (doc.getObject("YZ_Plane"), [""])
datumplane3.MapMode = "FlatFace"
datumplane3.AttachmentOffset = App.Placement(Vector(0, 0, 41), App.Rotation())
mirrored3 = body.newObject("PartDesign::Mirrored", "Mirrored002")
mirrored3.Originals = [pad3]
mirrored3.MirrorPlane = (datumplane3, [""])
body.Tip = mirrored3

# Sketch on XY plane
sketch10 = body.newObject("Sketcher::SketchObject", "Sketch009")
sketch10.AttachmentSupport = (doc.getObject("XY_Plane"), [""])
sketch10.MapMode = "FlatFace"
sketch10.AttachmentOffset = App.Placement(Vector(0, 0, 8), App.Rotation())
sketch10.addGeometry([
    Part.LineSegment(Vector(82, -34.6, 0), Vector(82, -35.2, 0)),
    Part.LineSegment(Vector(82, -35.2, 0), Vector(0, -35.2, 0)),
    Part.LineSegment(Vector(0, -35.2, 0), Vector(0, -34.6, 0)),
    Part.LineSegment(Vector(0, -34.6, 0), Vector(82, -34.6, 0)),
], False)
sketch10.addConstraint([
    Sketcher.Constraint("Coincident", 0, 2, 1, 1),
    Sketcher.Constraint("Coincident", 1, 2, 2, 1),
    Sketcher.Constraint("Coincident", 2, 2, 3, 1),
    Sketcher.Constraint("Coincident", 3, 2, 0, 1),
    Sketcher.Constraint("Vertical", 0),
    Sketcher.Constraint("Horizontal", 1),
    Sketcher.Constraint("Vertical", 2),
    Sketcher.Constraint("Horizontal", 3),
    Sketcher.Constraint("PointOnObject", 1, 2, -2),
    Sketcher.Constraint("DistanceX", 1, 2, 1, 1, 82.0),
    Sketcher.Constraint("DistanceY", 0, 2, 0, 1, 0.6),
    Sketcher.Constraint("DistanceY", 0, 2, -1, 1, 35.2),
])
sketch10.setExpression("Constraints[9]", "Params.sketch10_width")
sketch10.setExpression("Constraints[10]", "Params.sketch10_height")
pocket7 = body.newObject("PartDesign::Pocket", "Pocket006")
pocket7.Profile = sketch10
pocket7.Type = "ThroughAll"
pocket7.Reversed = True

# Sketch on XY plane
sketch11 = body.newObject("Sketcher::SketchObject", "Sketch010")
sketch11.AttachmentSupport = (doc.getObject("XY_Plane"), [""])
sketch11.MapMode = "FlatFace"
sketch11.AttachmentOffset = App.Placement(Vector(0, 0, 7.25), App.Rotation())
sketch11.addGeometry([
    Part.LineSegment(Vector(75.1, 12.3, 0), Vector(80.9, 12.3, 0)),  # 0
    Part.LineSegment(Vector(80.9, 12.3, 0), Vector(84.1, 9.1, 0)),  # 1
    Part.LineSegment(Vector(84.1, 9.1, 0), Vector(78, 5.6, 0)),  # 2
    Part.LineSegment(Vector(78, 5.6, 0), Vector(75.1, 7.3, 0)),  # 3
    Part.LineSegment(Vector(75.1, 7.3, 0), Vector(75.1, 12.3, 0)),  # 4
    Part.LineSegment(Vector(75.1, -21.1, 0), Vector(75.1, -17.7, 0)),  # 5
    Part.LineSegment(Vector(75.1, -17.7, 0), Vector(78, -16.1, 0)),  # 6
    Part.LineSegment(Vector(78, -16.1, 0), Vector(80.9, -17.7, 0)),  # 7
    Part.LineSegment(Vector(80.9, -17.7, 0), Vector(80.9, -21.1, 0)),  # 8
    Part.LineSegment(Vector(80.9, -21.1, 0), Vector(78, -22.7, 0)),  # 9
    Part.LineSegment(Vector(78, -22.7, 0), Vector(75.1, -21.1, 0)),  # 10
], False)
sketch11.addConstraint([
    Sketcher.Constraint("Coincident", 0, 2, 1, 1),
    Sketcher.Constraint("Coincident", 1, 2, 2, 1),
    Sketcher.Constraint("Coincident", 2, 2, 3, 1),
    Sketcher.Constraint("Coincident", 3, 2, 4, 1),
    Sketcher.Constraint("Coincident", 4, 2, 0, 1),
    Sketcher.Constraint("Coincident", 5, 2, 6, 1),
    Sketcher.Constraint("Coincident", 6, 2, 7, 1),
    Sketcher.Constraint("Coincident", 7, 2, 8, 1),
    Sketcher.Constraint("Coincident", 8, 2, 9, 1),
    Sketcher.Constraint("Coincident", 9, 2, 10, 1),
    Sketcher.Constraint("Coincident", 10, 2, 5, 1),
    Sketcher.Constraint("Horizontal", 0),
    Sketcher.Constraint("Vertical", 4),
    Sketcher.Constraint("Vertical", 5),
    Sketcher.Constraint("Vertical", 8),
    Sketcher.Constraint("Parallel", 2, 6),
    Sketcher.Constraint("Parallel", 3, 7),
    Sketcher.Constraint("Parallel", 6, 9),
    Sketcher.Constraint("Parallel", 7, 10),
    Sketcher.Constraint("Horizontal", 5, 2, 7, 2),
    Sketcher.Constraint("Horizontal", 8, 2, 10, 2),
    Sketcher.Constraint("Vertical", 4, 2, 5, 2),
    Sketcher.Constraint("Vertical", 2, 2, 6, 2),
    Sketcher.Constraint("Vertical", 0, 2, 7, 2),
    Sketcher.Constraint("Vertical", 6, 2, 9, 2),
    Sketcher.Constraint("Angle", 2, Q("-150 deg")),
    Sketcher.Constraint("DistanceX", 0, 1, 0, 2, 5.8),
    Sketcher.Constraint("DistanceX", -1, 1, 2, 2, 78.0),
    Sketcher.Constraint("DistanceY", 6, 2, 0, 2, 28.34),
    Sketcher.Constraint("DistanceY", 8, 2, 3, 2, 28.34),
    Sketcher.Constraint("DistanceY", 5, 1, 5, 2, 3.348632),
    Sketcher.Constraint("Distance", 1, 4.499612),
    Sketcher.Constraint("DistanceY", -1, 1, 1, 2, 9.096389),
])
sketch11.setExpression("Constraints[26]", "Params.sketch11_width")
pocket8 = body.newObject("PartDesign::Pocket", "Pocket007")
pocket8.Profile = sketch11
pocket8.setExpression("Length", "Params.pocket8_length")
pocket8.Reversed = True
doc.recompute()

datumplane4 = body.newObject("PartDesign::Plane", "DatumPlane003")
datumplane4.AttachmentSupport = (doc.getObject("YZ_Plane"), [""])
datumplane4.MapMode = "FlatFace"
datumplane4.AttachmentOffset = App.Placement(Vector(0, 0, 41), App.Rotation())
mirrored4 = body.newObject("PartDesign::Mirrored", "Mirrored003")
mirrored4.Originals = [pocket8]
mirrored4.MirrorPlane = (datumplane4, [""])
body.Tip = mirrored4
doc.recompute()

chamfer3 = body.newObject("PartDesign::Chamfer", "Chamfer002")
chamfer3.Base = (mirrored4, edges_at(mirrored4, [
    (2.4, 8.94, 11.15),
    (76.4, 8.94, 11.15),
    (2.4, -19.4, 11.15),
    (79.6, -19.4, 11.15),
]))
chamfer3.setExpression("Size", "Params.chamfer3_size")

doc.recompute()
